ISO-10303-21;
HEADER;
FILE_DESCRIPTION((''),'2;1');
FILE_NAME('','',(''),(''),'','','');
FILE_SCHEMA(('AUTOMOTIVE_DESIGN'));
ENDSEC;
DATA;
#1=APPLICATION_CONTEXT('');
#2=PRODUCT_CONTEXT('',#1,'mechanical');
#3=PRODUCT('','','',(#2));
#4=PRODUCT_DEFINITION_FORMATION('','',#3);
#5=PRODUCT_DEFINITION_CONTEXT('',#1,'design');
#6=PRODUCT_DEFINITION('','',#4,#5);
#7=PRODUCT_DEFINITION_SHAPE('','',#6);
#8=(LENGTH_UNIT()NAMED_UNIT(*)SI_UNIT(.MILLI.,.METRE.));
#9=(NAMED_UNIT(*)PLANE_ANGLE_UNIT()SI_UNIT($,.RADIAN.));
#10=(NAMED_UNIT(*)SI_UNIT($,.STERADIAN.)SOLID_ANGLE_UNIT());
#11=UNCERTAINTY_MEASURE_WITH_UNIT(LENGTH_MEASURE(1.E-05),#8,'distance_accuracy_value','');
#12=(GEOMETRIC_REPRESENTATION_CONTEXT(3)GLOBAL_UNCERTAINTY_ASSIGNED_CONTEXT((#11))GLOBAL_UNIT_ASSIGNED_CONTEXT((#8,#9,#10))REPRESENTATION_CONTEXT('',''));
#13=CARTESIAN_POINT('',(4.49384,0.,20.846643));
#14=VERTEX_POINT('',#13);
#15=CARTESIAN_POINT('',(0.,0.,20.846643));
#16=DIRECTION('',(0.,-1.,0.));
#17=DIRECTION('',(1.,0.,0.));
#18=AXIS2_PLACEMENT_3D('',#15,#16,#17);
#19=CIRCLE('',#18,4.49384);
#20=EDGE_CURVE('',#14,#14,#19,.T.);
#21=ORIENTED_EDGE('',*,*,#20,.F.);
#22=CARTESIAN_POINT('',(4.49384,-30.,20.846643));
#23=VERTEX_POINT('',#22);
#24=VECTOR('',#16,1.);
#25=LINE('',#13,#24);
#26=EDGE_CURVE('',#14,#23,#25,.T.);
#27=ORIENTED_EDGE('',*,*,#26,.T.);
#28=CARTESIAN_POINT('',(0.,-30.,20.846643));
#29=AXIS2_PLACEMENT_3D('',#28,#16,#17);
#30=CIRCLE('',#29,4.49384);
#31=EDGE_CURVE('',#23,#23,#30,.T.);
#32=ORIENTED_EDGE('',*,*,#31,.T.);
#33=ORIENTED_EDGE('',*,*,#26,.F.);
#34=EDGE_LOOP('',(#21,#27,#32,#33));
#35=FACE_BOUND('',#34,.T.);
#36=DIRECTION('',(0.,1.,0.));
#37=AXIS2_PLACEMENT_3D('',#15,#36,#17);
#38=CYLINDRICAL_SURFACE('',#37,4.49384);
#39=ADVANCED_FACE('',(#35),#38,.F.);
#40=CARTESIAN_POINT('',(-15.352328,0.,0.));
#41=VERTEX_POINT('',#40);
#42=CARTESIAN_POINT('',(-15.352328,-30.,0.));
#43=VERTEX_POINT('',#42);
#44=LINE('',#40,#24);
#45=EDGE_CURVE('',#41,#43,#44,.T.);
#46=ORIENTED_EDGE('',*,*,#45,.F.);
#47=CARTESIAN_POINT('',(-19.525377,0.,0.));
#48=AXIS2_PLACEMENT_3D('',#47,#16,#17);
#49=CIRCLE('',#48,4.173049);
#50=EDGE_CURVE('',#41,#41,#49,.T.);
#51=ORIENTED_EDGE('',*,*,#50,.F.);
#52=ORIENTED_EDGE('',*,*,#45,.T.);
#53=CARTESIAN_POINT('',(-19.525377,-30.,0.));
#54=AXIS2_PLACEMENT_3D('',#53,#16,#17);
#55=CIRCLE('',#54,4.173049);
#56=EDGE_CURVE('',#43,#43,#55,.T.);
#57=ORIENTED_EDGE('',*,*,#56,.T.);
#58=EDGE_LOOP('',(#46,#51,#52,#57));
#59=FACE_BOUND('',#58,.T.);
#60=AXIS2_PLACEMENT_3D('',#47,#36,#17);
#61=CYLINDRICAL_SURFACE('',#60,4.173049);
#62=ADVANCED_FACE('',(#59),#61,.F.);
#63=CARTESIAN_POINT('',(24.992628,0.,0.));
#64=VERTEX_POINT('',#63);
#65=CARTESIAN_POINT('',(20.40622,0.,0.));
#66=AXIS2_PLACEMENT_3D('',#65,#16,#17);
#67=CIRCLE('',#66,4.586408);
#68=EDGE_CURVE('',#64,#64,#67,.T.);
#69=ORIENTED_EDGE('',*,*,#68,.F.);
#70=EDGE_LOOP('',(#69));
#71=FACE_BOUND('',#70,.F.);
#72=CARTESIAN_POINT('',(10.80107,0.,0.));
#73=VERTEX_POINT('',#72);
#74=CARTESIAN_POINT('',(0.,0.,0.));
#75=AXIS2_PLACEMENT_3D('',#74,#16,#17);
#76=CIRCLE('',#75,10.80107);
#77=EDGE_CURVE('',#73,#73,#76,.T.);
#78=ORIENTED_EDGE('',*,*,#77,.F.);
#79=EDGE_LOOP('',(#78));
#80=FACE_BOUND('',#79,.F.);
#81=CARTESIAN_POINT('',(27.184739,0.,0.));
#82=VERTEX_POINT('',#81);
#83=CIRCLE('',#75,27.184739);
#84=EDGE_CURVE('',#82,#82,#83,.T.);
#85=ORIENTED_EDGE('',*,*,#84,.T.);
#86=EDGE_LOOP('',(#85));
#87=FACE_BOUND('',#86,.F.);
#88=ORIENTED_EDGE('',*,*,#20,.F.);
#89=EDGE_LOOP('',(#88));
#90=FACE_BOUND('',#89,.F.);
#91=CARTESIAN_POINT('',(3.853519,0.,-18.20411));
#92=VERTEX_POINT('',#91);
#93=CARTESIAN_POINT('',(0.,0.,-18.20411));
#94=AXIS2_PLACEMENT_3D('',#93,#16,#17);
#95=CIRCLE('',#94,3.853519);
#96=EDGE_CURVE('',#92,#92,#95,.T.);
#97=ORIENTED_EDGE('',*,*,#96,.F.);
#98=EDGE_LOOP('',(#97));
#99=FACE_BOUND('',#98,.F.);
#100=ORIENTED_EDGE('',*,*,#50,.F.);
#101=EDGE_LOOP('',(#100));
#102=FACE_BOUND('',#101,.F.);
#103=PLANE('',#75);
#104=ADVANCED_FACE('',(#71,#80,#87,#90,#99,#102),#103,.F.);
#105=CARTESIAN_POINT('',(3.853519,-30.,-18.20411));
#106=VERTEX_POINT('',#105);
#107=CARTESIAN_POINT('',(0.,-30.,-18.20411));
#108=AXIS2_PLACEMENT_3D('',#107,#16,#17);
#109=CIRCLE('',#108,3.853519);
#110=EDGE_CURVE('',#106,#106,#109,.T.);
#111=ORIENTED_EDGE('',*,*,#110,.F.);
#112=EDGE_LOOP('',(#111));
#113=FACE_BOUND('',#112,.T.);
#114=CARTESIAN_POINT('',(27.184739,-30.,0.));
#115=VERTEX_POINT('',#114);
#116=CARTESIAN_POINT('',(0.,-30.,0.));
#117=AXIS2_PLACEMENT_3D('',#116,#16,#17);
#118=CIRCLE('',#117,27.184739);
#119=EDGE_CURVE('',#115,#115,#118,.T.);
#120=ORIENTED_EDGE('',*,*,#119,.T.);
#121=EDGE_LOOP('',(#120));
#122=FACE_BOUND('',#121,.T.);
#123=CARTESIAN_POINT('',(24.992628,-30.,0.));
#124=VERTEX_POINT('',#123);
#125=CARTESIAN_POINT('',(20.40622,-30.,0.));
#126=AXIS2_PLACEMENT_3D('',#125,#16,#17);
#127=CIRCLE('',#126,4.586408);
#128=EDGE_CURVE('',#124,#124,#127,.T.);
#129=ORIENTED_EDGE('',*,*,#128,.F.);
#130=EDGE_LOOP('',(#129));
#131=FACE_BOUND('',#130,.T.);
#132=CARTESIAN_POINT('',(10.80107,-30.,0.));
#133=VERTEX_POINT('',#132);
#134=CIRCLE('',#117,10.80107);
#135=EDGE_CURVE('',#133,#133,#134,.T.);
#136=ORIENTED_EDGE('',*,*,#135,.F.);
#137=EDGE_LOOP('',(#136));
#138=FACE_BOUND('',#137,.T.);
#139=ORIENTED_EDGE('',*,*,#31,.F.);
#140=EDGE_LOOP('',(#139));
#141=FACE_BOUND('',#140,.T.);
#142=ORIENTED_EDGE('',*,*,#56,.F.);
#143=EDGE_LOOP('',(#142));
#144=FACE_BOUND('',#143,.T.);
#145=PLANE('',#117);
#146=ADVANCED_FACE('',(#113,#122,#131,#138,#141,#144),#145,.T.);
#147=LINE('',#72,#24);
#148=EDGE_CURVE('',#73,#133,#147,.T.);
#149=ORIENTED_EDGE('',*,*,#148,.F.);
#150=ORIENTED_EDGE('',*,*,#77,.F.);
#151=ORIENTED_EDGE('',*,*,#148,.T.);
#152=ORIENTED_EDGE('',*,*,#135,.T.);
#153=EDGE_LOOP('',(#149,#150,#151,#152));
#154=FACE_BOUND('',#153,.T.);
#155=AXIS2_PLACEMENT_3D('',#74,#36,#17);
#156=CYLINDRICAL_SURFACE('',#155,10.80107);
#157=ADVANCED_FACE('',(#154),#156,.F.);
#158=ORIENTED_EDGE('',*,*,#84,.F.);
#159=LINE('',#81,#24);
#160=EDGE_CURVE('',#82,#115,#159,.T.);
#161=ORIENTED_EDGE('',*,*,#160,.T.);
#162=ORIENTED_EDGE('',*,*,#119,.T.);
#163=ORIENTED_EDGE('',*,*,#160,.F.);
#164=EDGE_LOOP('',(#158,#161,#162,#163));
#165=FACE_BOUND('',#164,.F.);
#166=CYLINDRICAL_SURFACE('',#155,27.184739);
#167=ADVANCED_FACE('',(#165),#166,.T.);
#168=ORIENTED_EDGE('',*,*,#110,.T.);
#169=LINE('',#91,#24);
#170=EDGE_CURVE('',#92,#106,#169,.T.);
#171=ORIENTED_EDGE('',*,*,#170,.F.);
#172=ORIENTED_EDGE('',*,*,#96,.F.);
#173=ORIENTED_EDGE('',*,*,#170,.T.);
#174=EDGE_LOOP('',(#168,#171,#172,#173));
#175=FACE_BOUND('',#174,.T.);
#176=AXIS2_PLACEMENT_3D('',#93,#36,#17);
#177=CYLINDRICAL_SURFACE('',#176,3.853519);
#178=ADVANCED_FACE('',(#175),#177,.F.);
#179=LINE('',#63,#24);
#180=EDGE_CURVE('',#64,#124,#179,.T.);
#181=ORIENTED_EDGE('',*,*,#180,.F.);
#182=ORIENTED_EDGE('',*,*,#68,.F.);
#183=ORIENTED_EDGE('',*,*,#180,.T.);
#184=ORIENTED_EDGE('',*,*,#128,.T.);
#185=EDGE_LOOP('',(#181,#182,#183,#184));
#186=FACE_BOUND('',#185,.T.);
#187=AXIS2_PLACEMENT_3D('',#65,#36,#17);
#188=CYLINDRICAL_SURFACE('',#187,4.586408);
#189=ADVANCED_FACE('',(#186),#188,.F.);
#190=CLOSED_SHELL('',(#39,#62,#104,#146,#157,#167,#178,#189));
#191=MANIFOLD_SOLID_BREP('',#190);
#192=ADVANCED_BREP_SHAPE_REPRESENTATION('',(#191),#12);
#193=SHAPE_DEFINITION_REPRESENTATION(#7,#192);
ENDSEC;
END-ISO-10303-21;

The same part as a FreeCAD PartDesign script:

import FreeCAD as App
import Part
import Sketcher

V = App.Vector

doc = App.newDocument("Part")
body = doc.addObject("PartDesign::Body", "Body")

# Sketch on XZ plane
sketch1 = doc.addObject("Sketcher::SketchObject", "Sketch")
body.addObject(sketch1)
sketch1.AttachmentSupport = (doc.XZ_Plane, [""])
sketch1.MapMode = "FlatFace"
sketch1.addGeometry([
    Part.Circle(V(0, 0, 0), V(0, 0, 1), 27.2),  # 0
    Part.Circle(V(0, -18.2, 0), V(0, 0, 1), 3.9),  # 1
    Part.Circle(V(-19.5, 0, 0), V(0, 0, 1), 4.2),  # 2
    Part.Circle(V(0, 0, 0), V(0, 0, 1), 10.8),  # 3
    Part.Circle(V(20.4, 0, 0), V(0, 0, 1), 4.6),  # 4
    Part.Circle(V(0, 20.8, 0), V(0, 0, 1), 4.5),  # 5
], False)
sketch1.addConstraint([
    Sketcher.Constraint("Coincident", 0, 3, -1, 1),
    Sketcher.Constraint("Coincident", 3, 3, -1, 1),
    Sketcher.Constraint("PointOnObject", 1, 3, -2),
    Sketcher.Constraint("PointOnObject", 2, 3, -1),
    Sketcher.Constraint("PointOnObject", 4, 3, -1),
    Sketcher.Constraint("PointOnObject", 5, 3, -2),
    Sketcher.Constraint("Diameter", 3, 21.60214),
    Sketcher.Constraint("Diameter", 5, 8.98768),
    Sketcher.Constraint("Diameter", 0, 54.369478),
    Sketcher.Constraint("Diameter", 1, 7.707038),
    Sketcher.Constraint("Diameter", 2, 8.346098),
    Sketcher.Constraint("Diameter", 4, 9.172816),
    Sketcher.Constraint("DistanceY", 1, 3, -1, 1, 18.20411),
    Sketcher.Constraint("DistanceX", -1, 1, 4, 3, 20.40622),
    Sketcher.Constraint("DistanceX", 2, 3, -1, 1, 19.525377),
    Sketcher.Constraint("DistanceY", -1, 1, 5, 3, 20.846643),
])
pad1 = doc.addObject("PartDesign::Pad", "Pad")
body.addObject(pad1)
pad1.Profile = sketch1
pad1.Length = 30

doc.recompute()
